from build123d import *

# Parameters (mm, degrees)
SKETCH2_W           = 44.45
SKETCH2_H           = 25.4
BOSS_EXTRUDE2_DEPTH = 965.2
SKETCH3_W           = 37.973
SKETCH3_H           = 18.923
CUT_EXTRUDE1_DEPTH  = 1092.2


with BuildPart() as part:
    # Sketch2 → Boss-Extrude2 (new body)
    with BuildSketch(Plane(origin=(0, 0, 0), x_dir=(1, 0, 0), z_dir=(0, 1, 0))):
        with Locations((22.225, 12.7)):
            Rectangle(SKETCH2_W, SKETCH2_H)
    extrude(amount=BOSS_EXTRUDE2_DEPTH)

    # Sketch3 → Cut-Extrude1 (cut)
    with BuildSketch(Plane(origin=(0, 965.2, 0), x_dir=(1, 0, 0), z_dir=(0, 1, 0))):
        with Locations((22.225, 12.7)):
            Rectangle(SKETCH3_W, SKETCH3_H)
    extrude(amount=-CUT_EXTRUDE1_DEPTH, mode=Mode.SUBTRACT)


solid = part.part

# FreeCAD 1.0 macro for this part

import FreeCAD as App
import Part
import Sketcher

V = App.Vector
Q = App.Units.Quantity

doc = App.newDocument("Part")
body = doc.addObject("PartDesign::Body", "Body")

sketch1 = body.newObject("Sketcher::SketchObject", "Sketch")
sketch1.AttachmentSupport = (doc.getObject("XZ_Plane"), [""])
sketch1.MapMode = "FlatFace"
sketch1.addGeometry([
    Part.LineSegment(V(0, -25, 0), V(0, 0, 0)),
    Part.LineSegment(V(0, 0, 0), V(44, 0, 0)),
    Part.LineSegment(V(44, 0, 0), V(44, -25, 0)),
    Part.LineSegment(V(44, -25, 0), V(0, -25, 0)),
], False)
sketch1.addConstraint([
    Sketcher.Constraint("Coincident", 0, 2, 1, 1),
    Sketcher.Constraint("Coincident", 1, 2, 2, 1),
    Sketcher.Constraint("Coincident", 2, 2, 3, 1),
    Sketcher.Constraint("Coincident", 3, 2, 0, 1),
    Sketcher.Constraint("Vertical", 0),
    Sketcher.Constraint("Horizontal", 1),
    Sketcher.Constraint("Vertical", 2),
    Sketcher.Constraint("Horizontal", 3),
    Sketcher.Constraint("Coincident", 0, 2, -1, 1),
    Sketcher.Constraint("DistanceY", 0, 1, 0, 2, Q("1 in")),
    Sketcher.Constraint("DistanceX", 1, 1, 1, 2, Q("1.75 in")),
])
pad1 = body.newObject("PartDesign::Pad", "Pad")
pad1.Profile = sketch1
pad1.Length = Q("38 in")
pad1.Reversed = True

sketch2 = body.newObject("Sketcher::SketchObject", "Sketch001")
sketch2.AttachmentSupport = (doc.getObject("XZ_Plane"), [""])
sketch2.MapMode = "FlatFace"
sketch2.AttachmentOffset = App.Placement(V(0, 0, -38 * 25.4), App.Rotation())
sketch2.addGeometry([
    Part.LineSegment(V(3, -22, 0), V(3, -3, 0)),
    Part.LineSegment(V(3, -3, 0), V(41, -3, 0)),
    Part.LineSegment(V(41, -3, 0), V(41, -22, 0)),
    Part.LineSegment(V(41, -22, 0), V(3, -22, 0)),
], False)
sketch2.addConstraint([
    Sketcher.Constraint("Coincident", 0, 2, 1, 1),
    Sketcher.Constraint("Coincident", 1, 2, 2, 1),
    Sketcher.Constraint("Coincident", 2, 2, 3, 1),
    Sketcher.Constraint("Coincident", 3, 2, 0, 1),
    Sketcher.Constraint("Vertical", 0),
    Sketcher.Constraint("Horizontal", 1),
    Sketcher.Constraint("Vertical", 2),
    Sketcher.Constraint("Horizontal", 3),
    Sketcher.Constraint("DistanceX", 1, 1, 1, 2, Q("1.495 in")),
    Sketcher.Constraint("DistanceY", 0, 1, 0, 2, Q("0.745 in")),
    Sketcher.Constraint("DistanceX", -1, 1, 0, 2, Q("0.1275 in")),
    Sketcher.Constraint("DistanceY", 0, 2, -1, 1, Q("0.1275 in")),
])
pocket1 = body.newObject("PartDesign::Pocket", "Pocket")
pocket1.Profile = sketch2
pocket1.Length = Q("43 in")
pocket1.Reversed = True

doc.recompute()
